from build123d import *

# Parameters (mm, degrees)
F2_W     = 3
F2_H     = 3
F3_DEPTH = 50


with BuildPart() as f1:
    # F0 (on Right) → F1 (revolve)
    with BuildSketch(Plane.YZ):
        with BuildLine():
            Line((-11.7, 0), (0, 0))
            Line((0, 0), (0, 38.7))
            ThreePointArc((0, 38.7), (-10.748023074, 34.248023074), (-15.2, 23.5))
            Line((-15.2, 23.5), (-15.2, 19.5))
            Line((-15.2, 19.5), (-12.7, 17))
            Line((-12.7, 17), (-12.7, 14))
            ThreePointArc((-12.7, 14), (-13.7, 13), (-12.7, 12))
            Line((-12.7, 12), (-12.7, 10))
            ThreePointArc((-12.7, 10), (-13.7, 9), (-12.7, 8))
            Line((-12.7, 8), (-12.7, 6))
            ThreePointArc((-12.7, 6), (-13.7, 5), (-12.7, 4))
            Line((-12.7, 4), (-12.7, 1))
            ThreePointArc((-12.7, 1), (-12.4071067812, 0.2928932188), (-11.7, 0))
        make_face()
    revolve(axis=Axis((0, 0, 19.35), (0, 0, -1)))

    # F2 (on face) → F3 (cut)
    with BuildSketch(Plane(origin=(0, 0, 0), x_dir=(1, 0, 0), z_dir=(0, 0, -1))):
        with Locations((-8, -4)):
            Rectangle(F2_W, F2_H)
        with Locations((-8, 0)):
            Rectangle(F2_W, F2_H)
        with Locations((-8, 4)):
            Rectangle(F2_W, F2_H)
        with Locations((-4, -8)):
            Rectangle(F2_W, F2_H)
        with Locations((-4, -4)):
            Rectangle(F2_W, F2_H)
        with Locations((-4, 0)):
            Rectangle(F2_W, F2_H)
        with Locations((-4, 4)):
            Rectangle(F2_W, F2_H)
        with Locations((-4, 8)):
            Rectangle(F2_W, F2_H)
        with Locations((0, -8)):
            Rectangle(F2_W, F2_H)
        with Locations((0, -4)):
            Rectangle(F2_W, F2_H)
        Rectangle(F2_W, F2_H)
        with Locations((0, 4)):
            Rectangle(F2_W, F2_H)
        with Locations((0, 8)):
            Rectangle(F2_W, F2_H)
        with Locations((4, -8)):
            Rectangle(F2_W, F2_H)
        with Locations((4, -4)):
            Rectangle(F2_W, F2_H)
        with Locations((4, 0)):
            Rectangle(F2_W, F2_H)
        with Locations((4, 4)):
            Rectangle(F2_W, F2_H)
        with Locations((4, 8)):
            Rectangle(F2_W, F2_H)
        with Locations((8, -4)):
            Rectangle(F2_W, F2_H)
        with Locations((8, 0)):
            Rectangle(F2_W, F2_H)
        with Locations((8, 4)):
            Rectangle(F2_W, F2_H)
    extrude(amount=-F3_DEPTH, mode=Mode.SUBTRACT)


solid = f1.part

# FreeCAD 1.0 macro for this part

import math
import FreeCAD as App
import Part
import Sketcher
from FreeCAD import Vector
Q = App.Units.Quantity


def add_polygon(sketch, points):
    """Adds a closed chain of lines whose ends are joined by coincident constraints."""
    first, n = sketch.GeometryCount, len(points)
    for a, b in zip(points, points[1:] + points[:1]):
        sketch.addGeometry(Part.LineSegment(App.Vector(*a, 0), App.Vector(*b, 0)), False)
    for i in range(n):
        sketch.addConstraint(Sketcher.Constraint("Coincident", first + i, 2, first + (i + 1) % n, 1))

doc = App.newDocument("Part")
params = doc.addObject("Spreadsheet::Sheet", "Params")
for row, (alias, value) in enumerate([
    ("sketch1_radius", "1 mm"),
    ("sketch1_radius2", "15.2 mm"),
    ("sketch1_height", "4 mm"),
    ("sketch1_height2", "3 mm"),
    ("sketch1_height3", "2 mm"),
    ("revolution_angle", "360 deg"),
    ("sketch2_width", "3 mm"),
    ("pocket1_length", "50 mm"),
], start=1):
    params.set(f"A{row}", alias)
    params.set(f"B{row}", "=" + value)
    params.setAlias(f"B{row}", alias)

body = doc.addObject("PartDesign::Body", "Body")

sketch1 = body.newObject("Sketcher::SketchObject", "Sketch")
sketch1.AttachmentSupport = (doc.getObject("YZ_Plane"), [""])
sketch1.MapMode = "FlatFace"
sketch1.addGeometry([
    Part.LineSegment(Vector(-11.7, 0, 0), Vector(0, 0, 0)),
    Part.LineSegment(Vector(0, 0, 0), Vector(0, 38.7, 0)),
    Part.ArcOfCircle(Part.Circle(Vector(0, 23.5, 0), Vector(0, 0, 1), 15.2), math.radians(90), math.radians(180)),
    Part.LineSegment(Vector(-15.2, 23.5, 0), Vector(-15.2, 19.5, 0)),
    Part.LineSegment(Vector(-15.2, 19.5, 0), Vector(-12.7, 17, 0)),
    Part.LineSegment(Vector(-12.7, 17, 0), Vector(-12.7, 14, 0)),
    Part.ArcOfCircle(Part.Circle(Vector(-12.7, 13, 0), Vector(0, 0, 1), 1), math.radians(90), math.radians(270)),
    Part.LineSegment(Vector(-12.7, 12, 0), Vector(-12.7, 10, 0)),
    Part.ArcOfCircle(Part.Circle(Vector(-12.7, 9, 0), Vector(0, 0, 1), 1), math.radians(90), math.radians(270)),
    Part.LineSegment(Vector(-12.7, 8, 0), Vector(-12.7, 6, 0)),
    Part.ArcOfCircle(Part.Circle(Vector(-12.7, 5, 0), Vector(0, 0, 1), 1), math.radians(90), math.radians(270)),
    Part.LineSegment(Vector(-12.7, 4, 0), Vector(-12.7, 1, 0)),
    Part.ArcOfCircle(Part.Circle(Vector(-11.7, 1, 0), Vector(0, 0, 1), 1), math.radians(180), math.radians(270)),
], False)
sketch1.addConstraint([
    Sketcher.Constraint("Coincident", 0, 2, 1, 1),
    Sketcher.Constraint("Coincident", 1, 2, 2, 1),
    Sketcher.Constraint("Tangent", 2, 2, 3, 1),
    Sketcher.Constraint("Coincident", 3, 2, 4, 1),
    Sketcher.Constraint("Coincident", 4, 2, 5, 1),
    Sketcher.Constraint("Coincident", 5, 2, 6, 1),
    Sketcher.Constraint("Coincident", 6, 2, 7, 1),
    Sketcher.Constraint("Coincident", 7, 2, 8, 1),
    Sketcher.Constraint("Coincident", 8, 2, 9, 1),
    Sketcher.Constraint("Coincident", 9, 2, 10, 1),
    Sketcher.Constraint("Coincident", 10, 2, 11, 1),
    Sketcher.Constraint("Tangent", 11, 2, 12, 1),
    Sketcher.Constraint("Tangent", 12, 2, 0, 1),
    Sketcher.Constraint("Horizontal", 0),
    Sketcher.Constraint("Vertical", 1),
    Sketcher.Constraint("Vertical", 3),
    Sketcher.Constraint("Vertical", 5),
    Sketcher.Constraint("Vertical", 7),
    Sketcher.Constraint("Vertical", 9),
    Sketcher.Constraint("Vertical", 11),
    Sketcher.Constraint("Coincident", 0, 2, -1, 1),
    Sketcher.Constraint("Equal", 6, 8),
    Sketcher.Constraint("Equal", 8, 10),
    Sketcher.Constraint("Equal", 10, 12),
    Sketcher.Constraint("PointOnObject", 2, 3, -2),
    Sketcher.Constraint("Vertical", 6, 3, 8, 3),
    Sketcher.Constraint("Vertical", 8, 3, 10, 3),
    Sketcher.Constraint("Vertical", 10, 3, 4, 2),
    Sketcher.Constraint("Vertical", 5, 2, 6, 2),
    Sketcher.Constraint("Vertical", 7, 2, 8, 2),
    Sketcher.Constraint("Vertical", 9, 2, 10, 2),
    Sketcher.Constraint("Equal", 7, 9),
    Sketcher.Constraint("Equal", 5, 11),
    Sketcher.Constraint("Radius", 6, Q("1 mm")),
    Sketcher.Constraint("Radius", 2, Q("15.2 mm")),
    Sketcher.Constraint("DistanceY", 3, 2, 3, 1, Q("4 mm")),
    Sketcher.Constraint("DistanceY", 5, 2, 5, 1, Q("3 mm")),
    Sketcher.Constraint("DistanceY", 7, 2, 7, 1, Q("2 mm")),
    Sketcher.Constraint("Angle", 4, Q("-45 deg")),
    Sketcher.Constraint("DistanceX", 0, 1, 0, 2, Q("11.7 mm")),
])
sketch1.setExpression("Constraints[33]", "Params.sketch1_radius")
sketch1.setExpression("Constraints[34]", "Params.sketch1_radius2")
sketch1.setExpression("Constraints[35]", "Params.sketch1_height")
sketch1.setExpression("Constraints[36]", "Params.sketch1_height2")
sketch1.setExpression("Constraints[37]", "Params.sketch1_height3")
revolution = body.newObject("PartDesign::Revolution", "Revolution")
revolution.Profile = sketch1
revolution.ReferenceAxis = (sketch1, ["V_Axis"])
revolution.setExpression("Angle", "Params.revolution_angle")

sketch2 = body.newObject("Sketcher::SketchObject", "Sketch001")
sketch2.AttachmentSupport = (doc.getObject("XY_Plane"), [""])
sketch2.MapMode = "FlatFace"
add_polygon(sketch2, [(-9.5, 2.5), (-9.5, 5.5), (-6.5, 5.5), (-6.5, 2.5)])
add_polygon(sketch2, [(-9.5, -1.5), (-9.5, 1.5), (-6.5, 1.5), (-6.5, -1.5)])
add_polygon(sketch2, [(-9.5, -5.5), (-9.5, -2.5), (-6.5, -2.5), (-6.5, -5.5)])
add_polygon(sketch2, [(-5.5, 6.5), (-5.5, 9.5), (-2.5, 9.5), (-2.5, 6.5)])
add_polygon(sketch2, [(-5.5, 2.5), (-5.5, 5.5), (-2.5, 5.5), (-2.5, 2.5)])
add_polygon(sketch2, [(-5.5, -1.5), (-5.5, 1.5), (-2.5, 1.5), (-2.5, -1.5)])
add_polygon(sketch2, [(-5.5, -5.5), (-5.5, -2.5), (-2.5, -2.5), (-2.5, -5.5)])
add_polygon(sketch2, [(-5.5, -9.5), (-5.5, -6.5), (-2.5, -6.5), (-2.5, -9.5)])
add_polygon(sketch2, [(-1.5, 6.5), (-1.5, 9.5), (1.5, 9.5), (1.5, 6.5)])
add_polygon(sketch2, [(-1.5, 2.5), (-1.5, 5.5), (1.5, 5.5), (1.5, 2.5)])
add_polygon(sketch2, [(-1.5, -1.5), (-1.5, 1.5), (1.5, 1.5), (1.5, -1.5)])
add_polygon(sketch2, [(-1.5, -5.5), (-1.5, -2.5), (1.5, -2.5), (1.5, -5.5)])
add_polygon(sketch2, [(-1.5, -9.5), (-1.5, -6.5), (1.5, -6.5), (1.5, -9.5)])
add_polygon(sketch2, [(2.5, 6.5), (2.5, 9.5), (5.5, 9.5), (5.5, 6.5)])
add_polygon(sketch2, [(2.5, 2.5), (2.5, 5.5), (5.5, 5.5), (5.5, 2.5)])
add_polygon(sketch2, [(2.5, -1.5), (2.5, 1.5), (5.5, 1.5), (5.5, -1.5)])
add_polygon(sketch2, [(2.5, -5.5), (2.5, -2.5), (5.5, -2.5), (5.5, -5.5)])
add_polygon(sketch2, [(2.5, -9.5), (2.5, -6.5), (5.5, -6.5), (5.5, -9.5)])
add_polygon(sketch2, [(6.5, 2.5), (6.5, 5.5), (9.5, 5.5), (9.5, 2.5)])
add_polygon(sketch2, [(6.5, -1.5), (6.5, 1.5), (9.5, 1.5), (9.5, -1.5)])
add_polygon(sketch2, [(6.5, -5.5), (6.5, -2.5), (9.5, -2.5), (9.5, -5.5)])
sketch2.addConstraint([
    Sketcher.Constraint("Vertical", 0),
    Sketcher.Constraint("Horizontal", 1),
    Sketcher.Constraint("Vertical", 2),
    Sketcher.Constraint("Horizontal", 3),
    Sketcher.Constraint("Vertical", 4),
    Sketcher.Constraint("Horizontal", 5),
    Sketcher.Constraint("Vertical", 6),
    Sketcher.Constraint("Horizontal", 7),
    Sketcher.Constraint("Vertical", 8),
    Sketcher.Constraint("Horizontal", 9),
    Sketcher.Constraint("Vertical", 10),
    Sketcher.Constraint("Horizontal", 11),
    Sketcher.Constraint("Vertical", 12),
    Sketcher.Constraint("Horizontal", 13),
    Sketcher.Constraint("Vertical", 14),
    Sketcher.Constraint("Horizontal", 15),
    Sketcher.Constraint("Vertical", 16),
    Sketcher.Constraint("Horizontal", 17),
    Sketcher.Constraint("Vertical", 18),
    Sketcher.Constraint("Horizontal", 19),
    Sketcher.Constraint("Vertical", 20),
    Sketcher.Constraint("Horizontal", 21),
    Sketcher.Constraint("Vertical", 22),
    Sketcher.Constraint("Horizontal", 23),
    Sketcher.Constraint("Vertical", 24),
    Sketcher.Constraint("Horizontal", 25),
    Sketcher.Constraint("Vertical", 26),
    Sketcher.Constraint("Horizontal", 27),
    Sketcher.Constraint("Vertical", 28),
    Sketcher.Constraint("Horizontal", 29),
    Sketcher.Constraint("Vertical", 30),
    Sketcher.Constraint("Horizontal", 31),
    Sketcher.Constraint("Vertical", 32),
    Sketcher.Constraint("Horizontal", 33),
    Sketcher.Constraint("Vertical", 34),
    Sketcher.Constraint("Horizontal", 35),
    Sketcher.Constraint("Vertical", 36),
    Sketcher.Constraint("Horizontal", 37),
    Sketcher.Constraint("Vertical", 38),
    Sketcher.Constraint("Horizontal", 39),
    Sketcher.Constraint("Vertical", 40),
    Sketcher.Constraint("Horizontal", 41),
    Sketcher.Constraint("Vertical", 42),
    Sketcher.Constraint("Horizontal", 43),
    Sketcher.Constraint("Vertical", 44),
    Sketcher.Constraint("Horizontal", 45),
    Sketcher.Constraint("Vertical", 46),
    Sketcher.Constraint("Horizontal", 47),
    Sketcher.Constraint("Vertical", 48),
    Sketcher.Constraint("Horizontal", 49),
    Sketcher.Constraint("Vertical", 50),
    Sketcher.Constraint("Horizontal", 51),
    Sketcher.Constraint("Vertical", 52),
    Sketcher.Constraint("Horizontal", 53),
    Sketcher.Constraint("Vertical", 54),
    Sketcher.Constraint("Horizontal", 55),
    Sketcher.Constraint("Vertical", 56),
    Sketcher.Constraint("Horizontal", 57),
    Sketcher.Constraint("Vertical", 58),
    Sketcher.Constraint("Horizontal", 59),
    Sketcher.Constraint("Vertical", 60),
    Sketcher.Constraint("Horizontal", 61),
    Sketcher.Constraint("Vertical", 62),
    Sketcher.Constraint("Horizontal", 63),
    Sketcher.Constraint("Vertical", 64),
    Sketcher.Constraint("Horizontal", 65),
    Sketcher.Constraint("Vertical", 66),
    Sketcher.Constraint("Horizontal", 67),
    Sketcher.Constraint("Vertical", 68),
    Sketcher.Constraint("Horizontal", 69),
    Sketcher.Constraint("Vertical", 70),
    Sketcher.Constraint("Horizontal", 71),
    Sketcher.Constraint("Vertical", 72),
    Sketcher.Constraint("Horizontal", 73),
    Sketcher.Constraint("Vertical", 74),
    Sketcher.Constraint("Horizontal", 75),
    Sketcher.Constraint("Vertical", 76),
    Sketcher.Constraint("Horizontal", 77),
    Sketcher.Constraint("Vertical", 78),
    Sketcher.Constraint("Horizontal", 79),
    Sketcher.Constraint("Vertical", 80),
    Sketcher.Constraint("Horizontal", 81),
    Sketcher.Constraint("Vertical", 82),
    Sketcher.Constraint("Horizontal", 83),
    Sketcher.Constraint("Symmetric", 40, 2, 42, 2, -1, 1),
    Sketcher.Constraint("Symmetric", 38, 2, 44, 2, -1, 1),
    Sketcher.Constraint("Symmetric", 36, 2, 46, 2, -1, 1),
    Sketcher.Constraint("Symmetric", 34, 2, 48, 2, -1, 1),
    Sketcher.Constraint("Symmetric", 32, 2, 50, 2, -1, 1),
    Sketcher.Constraint("Symmetric", 30, 2, 52, 2, -1, 1),
    Sketcher.Constraint("Symmetric", 28, 2, 54, 2, -1, 1),
    Sketcher.Constraint("Symmetric", 26, 2, 56, 2, -1, 1),
    Sketcher.Constraint("Symmetric", 24, 2, 58, 2, -1, 1),
    Sketcher.Constraint("Symmetric", 22, 2, 60, 2, -1, 1),
    Sketcher.Constraint("Symmetric", 20, 2, 62, 2, -1, 1),
    Sketcher.Constraint("Symmetric", 18, 2, 64, 2, -1, 1),
    Sketcher.Constraint("Symmetric", 16, 2, 66, 2, -1, 1),
    Sketcher.Constraint("Symmetric", 14, 2, 68, 2, -1, 1),
    Sketcher.Constraint("Symmetric", 12, 2, 70, 2, -1, 1),
    Sketcher.Constraint("Symmetric", 10, 2, 72, 2, -1, 1),
    Sketcher.Constraint("Symmetric", 8, 2, 74, 2, -1, 1),
    Sketcher.Constraint("Symmetric", 6, 2, 76, 2, -1, 1),
    Sketcher.Constraint("Symmetric", 4, 2, 78, 2, -1, 1),
    Sketcher.Constraint("Symmetric", 2, 2, 80, 2, -1, 1),
    Sketcher.Constraint("Symmetric", 0, 2, 82, 2, -1, 1),
    Sketcher.Constraint("Symmetric", 13, 2, 52, 2, -2),
    Sketcher.Constraint("Symmetric", 15, 2, 54, 2, -2),
    Sketcher.Constraint("Symmetric", 17, 2, 56, 2, -2),
    Sketcher.Constraint("Symmetric", 19, 2, 58, 2, -2),
    Sketcher.Constraint("Symmetric", 1, 2, 72, 2, -2),
    Sketcher.Constraint("Symmetric", 3, 2, 74, 2, -2),
    Sketcher.Constraint("Horizontal", 1, 2, 16, 2),
    Sketcher.Constraint("Horizontal", 3, 2, 18, 2),
    Sketcher.Constraint("Horizontal", 5, 2, 20, 2),
    Sketcher.Constraint("Horizontal", 7, 2, 22, 2),
    Sketcher.Constraint("Horizontal", 13, 2, 32, 2),
    Sketcher.Constraint("Horizontal", 15, 2, 34, 2),
    Sketcher.Constraint("Horizontal", 17, 2, 36, 2),
    Sketcher.Constraint("Horizontal", 19, 2, 38, 2),
    Sketcher.Constraint("Horizontal", 21, 2, 40, 2),
    Sketcher.Constraint("Horizontal", 23, 2, 42, 2),
    Sketcher.Constraint("Vertical", 3, 2, 4, 2),
    Sketcher.Constraint("Vertical", 2, 2, 5, 2),
    Sketcher.Constraint("Vertical", 15, 2, 16, 2),
    Sketcher.Constraint("Vertical", 14, 2, 17, 2),
    Sketcher.Constraint("Vertical", 19, 2, 20, 2),
    Sketcher.Constraint("Vertical", 18, 2, 21, 2),
    Sketcher.Constraint("Vertical", 35, 2, 36, 2),
    Sketcher.Constraint("Vertical", 34, 2, 37, 2),
    Sketcher.Constraint("Vertical", 39, 2, 40, 2),
    Sketcher.Constraint("Vertical", 38, 2, 41, 2),
    Sketcher.Constraint("Equal", 11, 13),
    Sketcher.Constraint("Equal", 31, 33),
    Sketcher.Constraint("Equal", 83, 0),
    Sketcher.Constraint("Equal", 2, 4),
    Sketcher.Constraint("Equal", 10, 12),
    Sketcher.Constraint("DistanceX", 1, 1, 1, 2, Q("3 mm")),
    Sketcher.Constraint("DistanceX", 0, 2, -1, 1, Q("9.5 mm")),
    Sketcher.Constraint("DistanceY", -1, 1, 0, 2, Q("5.5 mm")),
    Sketcher.Constraint("DistanceX", 12, 2, -1, 1, Q("5.5 mm")),
    Sketcher.Constraint("DistanceY", -1, 1, 12, 2, Q("9.5 mm")),
])
sketch2.setExpression("Constraints[220]", "Params.sketch2_width")
pocket1 = body.newObject("PartDesign::Pocket", "Pocket")
pocket1.Profile = sketch2
pocket1.setExpression("Length", "Params.pocket1_length")
pocket1.Reversed = True

doc.recompute()
